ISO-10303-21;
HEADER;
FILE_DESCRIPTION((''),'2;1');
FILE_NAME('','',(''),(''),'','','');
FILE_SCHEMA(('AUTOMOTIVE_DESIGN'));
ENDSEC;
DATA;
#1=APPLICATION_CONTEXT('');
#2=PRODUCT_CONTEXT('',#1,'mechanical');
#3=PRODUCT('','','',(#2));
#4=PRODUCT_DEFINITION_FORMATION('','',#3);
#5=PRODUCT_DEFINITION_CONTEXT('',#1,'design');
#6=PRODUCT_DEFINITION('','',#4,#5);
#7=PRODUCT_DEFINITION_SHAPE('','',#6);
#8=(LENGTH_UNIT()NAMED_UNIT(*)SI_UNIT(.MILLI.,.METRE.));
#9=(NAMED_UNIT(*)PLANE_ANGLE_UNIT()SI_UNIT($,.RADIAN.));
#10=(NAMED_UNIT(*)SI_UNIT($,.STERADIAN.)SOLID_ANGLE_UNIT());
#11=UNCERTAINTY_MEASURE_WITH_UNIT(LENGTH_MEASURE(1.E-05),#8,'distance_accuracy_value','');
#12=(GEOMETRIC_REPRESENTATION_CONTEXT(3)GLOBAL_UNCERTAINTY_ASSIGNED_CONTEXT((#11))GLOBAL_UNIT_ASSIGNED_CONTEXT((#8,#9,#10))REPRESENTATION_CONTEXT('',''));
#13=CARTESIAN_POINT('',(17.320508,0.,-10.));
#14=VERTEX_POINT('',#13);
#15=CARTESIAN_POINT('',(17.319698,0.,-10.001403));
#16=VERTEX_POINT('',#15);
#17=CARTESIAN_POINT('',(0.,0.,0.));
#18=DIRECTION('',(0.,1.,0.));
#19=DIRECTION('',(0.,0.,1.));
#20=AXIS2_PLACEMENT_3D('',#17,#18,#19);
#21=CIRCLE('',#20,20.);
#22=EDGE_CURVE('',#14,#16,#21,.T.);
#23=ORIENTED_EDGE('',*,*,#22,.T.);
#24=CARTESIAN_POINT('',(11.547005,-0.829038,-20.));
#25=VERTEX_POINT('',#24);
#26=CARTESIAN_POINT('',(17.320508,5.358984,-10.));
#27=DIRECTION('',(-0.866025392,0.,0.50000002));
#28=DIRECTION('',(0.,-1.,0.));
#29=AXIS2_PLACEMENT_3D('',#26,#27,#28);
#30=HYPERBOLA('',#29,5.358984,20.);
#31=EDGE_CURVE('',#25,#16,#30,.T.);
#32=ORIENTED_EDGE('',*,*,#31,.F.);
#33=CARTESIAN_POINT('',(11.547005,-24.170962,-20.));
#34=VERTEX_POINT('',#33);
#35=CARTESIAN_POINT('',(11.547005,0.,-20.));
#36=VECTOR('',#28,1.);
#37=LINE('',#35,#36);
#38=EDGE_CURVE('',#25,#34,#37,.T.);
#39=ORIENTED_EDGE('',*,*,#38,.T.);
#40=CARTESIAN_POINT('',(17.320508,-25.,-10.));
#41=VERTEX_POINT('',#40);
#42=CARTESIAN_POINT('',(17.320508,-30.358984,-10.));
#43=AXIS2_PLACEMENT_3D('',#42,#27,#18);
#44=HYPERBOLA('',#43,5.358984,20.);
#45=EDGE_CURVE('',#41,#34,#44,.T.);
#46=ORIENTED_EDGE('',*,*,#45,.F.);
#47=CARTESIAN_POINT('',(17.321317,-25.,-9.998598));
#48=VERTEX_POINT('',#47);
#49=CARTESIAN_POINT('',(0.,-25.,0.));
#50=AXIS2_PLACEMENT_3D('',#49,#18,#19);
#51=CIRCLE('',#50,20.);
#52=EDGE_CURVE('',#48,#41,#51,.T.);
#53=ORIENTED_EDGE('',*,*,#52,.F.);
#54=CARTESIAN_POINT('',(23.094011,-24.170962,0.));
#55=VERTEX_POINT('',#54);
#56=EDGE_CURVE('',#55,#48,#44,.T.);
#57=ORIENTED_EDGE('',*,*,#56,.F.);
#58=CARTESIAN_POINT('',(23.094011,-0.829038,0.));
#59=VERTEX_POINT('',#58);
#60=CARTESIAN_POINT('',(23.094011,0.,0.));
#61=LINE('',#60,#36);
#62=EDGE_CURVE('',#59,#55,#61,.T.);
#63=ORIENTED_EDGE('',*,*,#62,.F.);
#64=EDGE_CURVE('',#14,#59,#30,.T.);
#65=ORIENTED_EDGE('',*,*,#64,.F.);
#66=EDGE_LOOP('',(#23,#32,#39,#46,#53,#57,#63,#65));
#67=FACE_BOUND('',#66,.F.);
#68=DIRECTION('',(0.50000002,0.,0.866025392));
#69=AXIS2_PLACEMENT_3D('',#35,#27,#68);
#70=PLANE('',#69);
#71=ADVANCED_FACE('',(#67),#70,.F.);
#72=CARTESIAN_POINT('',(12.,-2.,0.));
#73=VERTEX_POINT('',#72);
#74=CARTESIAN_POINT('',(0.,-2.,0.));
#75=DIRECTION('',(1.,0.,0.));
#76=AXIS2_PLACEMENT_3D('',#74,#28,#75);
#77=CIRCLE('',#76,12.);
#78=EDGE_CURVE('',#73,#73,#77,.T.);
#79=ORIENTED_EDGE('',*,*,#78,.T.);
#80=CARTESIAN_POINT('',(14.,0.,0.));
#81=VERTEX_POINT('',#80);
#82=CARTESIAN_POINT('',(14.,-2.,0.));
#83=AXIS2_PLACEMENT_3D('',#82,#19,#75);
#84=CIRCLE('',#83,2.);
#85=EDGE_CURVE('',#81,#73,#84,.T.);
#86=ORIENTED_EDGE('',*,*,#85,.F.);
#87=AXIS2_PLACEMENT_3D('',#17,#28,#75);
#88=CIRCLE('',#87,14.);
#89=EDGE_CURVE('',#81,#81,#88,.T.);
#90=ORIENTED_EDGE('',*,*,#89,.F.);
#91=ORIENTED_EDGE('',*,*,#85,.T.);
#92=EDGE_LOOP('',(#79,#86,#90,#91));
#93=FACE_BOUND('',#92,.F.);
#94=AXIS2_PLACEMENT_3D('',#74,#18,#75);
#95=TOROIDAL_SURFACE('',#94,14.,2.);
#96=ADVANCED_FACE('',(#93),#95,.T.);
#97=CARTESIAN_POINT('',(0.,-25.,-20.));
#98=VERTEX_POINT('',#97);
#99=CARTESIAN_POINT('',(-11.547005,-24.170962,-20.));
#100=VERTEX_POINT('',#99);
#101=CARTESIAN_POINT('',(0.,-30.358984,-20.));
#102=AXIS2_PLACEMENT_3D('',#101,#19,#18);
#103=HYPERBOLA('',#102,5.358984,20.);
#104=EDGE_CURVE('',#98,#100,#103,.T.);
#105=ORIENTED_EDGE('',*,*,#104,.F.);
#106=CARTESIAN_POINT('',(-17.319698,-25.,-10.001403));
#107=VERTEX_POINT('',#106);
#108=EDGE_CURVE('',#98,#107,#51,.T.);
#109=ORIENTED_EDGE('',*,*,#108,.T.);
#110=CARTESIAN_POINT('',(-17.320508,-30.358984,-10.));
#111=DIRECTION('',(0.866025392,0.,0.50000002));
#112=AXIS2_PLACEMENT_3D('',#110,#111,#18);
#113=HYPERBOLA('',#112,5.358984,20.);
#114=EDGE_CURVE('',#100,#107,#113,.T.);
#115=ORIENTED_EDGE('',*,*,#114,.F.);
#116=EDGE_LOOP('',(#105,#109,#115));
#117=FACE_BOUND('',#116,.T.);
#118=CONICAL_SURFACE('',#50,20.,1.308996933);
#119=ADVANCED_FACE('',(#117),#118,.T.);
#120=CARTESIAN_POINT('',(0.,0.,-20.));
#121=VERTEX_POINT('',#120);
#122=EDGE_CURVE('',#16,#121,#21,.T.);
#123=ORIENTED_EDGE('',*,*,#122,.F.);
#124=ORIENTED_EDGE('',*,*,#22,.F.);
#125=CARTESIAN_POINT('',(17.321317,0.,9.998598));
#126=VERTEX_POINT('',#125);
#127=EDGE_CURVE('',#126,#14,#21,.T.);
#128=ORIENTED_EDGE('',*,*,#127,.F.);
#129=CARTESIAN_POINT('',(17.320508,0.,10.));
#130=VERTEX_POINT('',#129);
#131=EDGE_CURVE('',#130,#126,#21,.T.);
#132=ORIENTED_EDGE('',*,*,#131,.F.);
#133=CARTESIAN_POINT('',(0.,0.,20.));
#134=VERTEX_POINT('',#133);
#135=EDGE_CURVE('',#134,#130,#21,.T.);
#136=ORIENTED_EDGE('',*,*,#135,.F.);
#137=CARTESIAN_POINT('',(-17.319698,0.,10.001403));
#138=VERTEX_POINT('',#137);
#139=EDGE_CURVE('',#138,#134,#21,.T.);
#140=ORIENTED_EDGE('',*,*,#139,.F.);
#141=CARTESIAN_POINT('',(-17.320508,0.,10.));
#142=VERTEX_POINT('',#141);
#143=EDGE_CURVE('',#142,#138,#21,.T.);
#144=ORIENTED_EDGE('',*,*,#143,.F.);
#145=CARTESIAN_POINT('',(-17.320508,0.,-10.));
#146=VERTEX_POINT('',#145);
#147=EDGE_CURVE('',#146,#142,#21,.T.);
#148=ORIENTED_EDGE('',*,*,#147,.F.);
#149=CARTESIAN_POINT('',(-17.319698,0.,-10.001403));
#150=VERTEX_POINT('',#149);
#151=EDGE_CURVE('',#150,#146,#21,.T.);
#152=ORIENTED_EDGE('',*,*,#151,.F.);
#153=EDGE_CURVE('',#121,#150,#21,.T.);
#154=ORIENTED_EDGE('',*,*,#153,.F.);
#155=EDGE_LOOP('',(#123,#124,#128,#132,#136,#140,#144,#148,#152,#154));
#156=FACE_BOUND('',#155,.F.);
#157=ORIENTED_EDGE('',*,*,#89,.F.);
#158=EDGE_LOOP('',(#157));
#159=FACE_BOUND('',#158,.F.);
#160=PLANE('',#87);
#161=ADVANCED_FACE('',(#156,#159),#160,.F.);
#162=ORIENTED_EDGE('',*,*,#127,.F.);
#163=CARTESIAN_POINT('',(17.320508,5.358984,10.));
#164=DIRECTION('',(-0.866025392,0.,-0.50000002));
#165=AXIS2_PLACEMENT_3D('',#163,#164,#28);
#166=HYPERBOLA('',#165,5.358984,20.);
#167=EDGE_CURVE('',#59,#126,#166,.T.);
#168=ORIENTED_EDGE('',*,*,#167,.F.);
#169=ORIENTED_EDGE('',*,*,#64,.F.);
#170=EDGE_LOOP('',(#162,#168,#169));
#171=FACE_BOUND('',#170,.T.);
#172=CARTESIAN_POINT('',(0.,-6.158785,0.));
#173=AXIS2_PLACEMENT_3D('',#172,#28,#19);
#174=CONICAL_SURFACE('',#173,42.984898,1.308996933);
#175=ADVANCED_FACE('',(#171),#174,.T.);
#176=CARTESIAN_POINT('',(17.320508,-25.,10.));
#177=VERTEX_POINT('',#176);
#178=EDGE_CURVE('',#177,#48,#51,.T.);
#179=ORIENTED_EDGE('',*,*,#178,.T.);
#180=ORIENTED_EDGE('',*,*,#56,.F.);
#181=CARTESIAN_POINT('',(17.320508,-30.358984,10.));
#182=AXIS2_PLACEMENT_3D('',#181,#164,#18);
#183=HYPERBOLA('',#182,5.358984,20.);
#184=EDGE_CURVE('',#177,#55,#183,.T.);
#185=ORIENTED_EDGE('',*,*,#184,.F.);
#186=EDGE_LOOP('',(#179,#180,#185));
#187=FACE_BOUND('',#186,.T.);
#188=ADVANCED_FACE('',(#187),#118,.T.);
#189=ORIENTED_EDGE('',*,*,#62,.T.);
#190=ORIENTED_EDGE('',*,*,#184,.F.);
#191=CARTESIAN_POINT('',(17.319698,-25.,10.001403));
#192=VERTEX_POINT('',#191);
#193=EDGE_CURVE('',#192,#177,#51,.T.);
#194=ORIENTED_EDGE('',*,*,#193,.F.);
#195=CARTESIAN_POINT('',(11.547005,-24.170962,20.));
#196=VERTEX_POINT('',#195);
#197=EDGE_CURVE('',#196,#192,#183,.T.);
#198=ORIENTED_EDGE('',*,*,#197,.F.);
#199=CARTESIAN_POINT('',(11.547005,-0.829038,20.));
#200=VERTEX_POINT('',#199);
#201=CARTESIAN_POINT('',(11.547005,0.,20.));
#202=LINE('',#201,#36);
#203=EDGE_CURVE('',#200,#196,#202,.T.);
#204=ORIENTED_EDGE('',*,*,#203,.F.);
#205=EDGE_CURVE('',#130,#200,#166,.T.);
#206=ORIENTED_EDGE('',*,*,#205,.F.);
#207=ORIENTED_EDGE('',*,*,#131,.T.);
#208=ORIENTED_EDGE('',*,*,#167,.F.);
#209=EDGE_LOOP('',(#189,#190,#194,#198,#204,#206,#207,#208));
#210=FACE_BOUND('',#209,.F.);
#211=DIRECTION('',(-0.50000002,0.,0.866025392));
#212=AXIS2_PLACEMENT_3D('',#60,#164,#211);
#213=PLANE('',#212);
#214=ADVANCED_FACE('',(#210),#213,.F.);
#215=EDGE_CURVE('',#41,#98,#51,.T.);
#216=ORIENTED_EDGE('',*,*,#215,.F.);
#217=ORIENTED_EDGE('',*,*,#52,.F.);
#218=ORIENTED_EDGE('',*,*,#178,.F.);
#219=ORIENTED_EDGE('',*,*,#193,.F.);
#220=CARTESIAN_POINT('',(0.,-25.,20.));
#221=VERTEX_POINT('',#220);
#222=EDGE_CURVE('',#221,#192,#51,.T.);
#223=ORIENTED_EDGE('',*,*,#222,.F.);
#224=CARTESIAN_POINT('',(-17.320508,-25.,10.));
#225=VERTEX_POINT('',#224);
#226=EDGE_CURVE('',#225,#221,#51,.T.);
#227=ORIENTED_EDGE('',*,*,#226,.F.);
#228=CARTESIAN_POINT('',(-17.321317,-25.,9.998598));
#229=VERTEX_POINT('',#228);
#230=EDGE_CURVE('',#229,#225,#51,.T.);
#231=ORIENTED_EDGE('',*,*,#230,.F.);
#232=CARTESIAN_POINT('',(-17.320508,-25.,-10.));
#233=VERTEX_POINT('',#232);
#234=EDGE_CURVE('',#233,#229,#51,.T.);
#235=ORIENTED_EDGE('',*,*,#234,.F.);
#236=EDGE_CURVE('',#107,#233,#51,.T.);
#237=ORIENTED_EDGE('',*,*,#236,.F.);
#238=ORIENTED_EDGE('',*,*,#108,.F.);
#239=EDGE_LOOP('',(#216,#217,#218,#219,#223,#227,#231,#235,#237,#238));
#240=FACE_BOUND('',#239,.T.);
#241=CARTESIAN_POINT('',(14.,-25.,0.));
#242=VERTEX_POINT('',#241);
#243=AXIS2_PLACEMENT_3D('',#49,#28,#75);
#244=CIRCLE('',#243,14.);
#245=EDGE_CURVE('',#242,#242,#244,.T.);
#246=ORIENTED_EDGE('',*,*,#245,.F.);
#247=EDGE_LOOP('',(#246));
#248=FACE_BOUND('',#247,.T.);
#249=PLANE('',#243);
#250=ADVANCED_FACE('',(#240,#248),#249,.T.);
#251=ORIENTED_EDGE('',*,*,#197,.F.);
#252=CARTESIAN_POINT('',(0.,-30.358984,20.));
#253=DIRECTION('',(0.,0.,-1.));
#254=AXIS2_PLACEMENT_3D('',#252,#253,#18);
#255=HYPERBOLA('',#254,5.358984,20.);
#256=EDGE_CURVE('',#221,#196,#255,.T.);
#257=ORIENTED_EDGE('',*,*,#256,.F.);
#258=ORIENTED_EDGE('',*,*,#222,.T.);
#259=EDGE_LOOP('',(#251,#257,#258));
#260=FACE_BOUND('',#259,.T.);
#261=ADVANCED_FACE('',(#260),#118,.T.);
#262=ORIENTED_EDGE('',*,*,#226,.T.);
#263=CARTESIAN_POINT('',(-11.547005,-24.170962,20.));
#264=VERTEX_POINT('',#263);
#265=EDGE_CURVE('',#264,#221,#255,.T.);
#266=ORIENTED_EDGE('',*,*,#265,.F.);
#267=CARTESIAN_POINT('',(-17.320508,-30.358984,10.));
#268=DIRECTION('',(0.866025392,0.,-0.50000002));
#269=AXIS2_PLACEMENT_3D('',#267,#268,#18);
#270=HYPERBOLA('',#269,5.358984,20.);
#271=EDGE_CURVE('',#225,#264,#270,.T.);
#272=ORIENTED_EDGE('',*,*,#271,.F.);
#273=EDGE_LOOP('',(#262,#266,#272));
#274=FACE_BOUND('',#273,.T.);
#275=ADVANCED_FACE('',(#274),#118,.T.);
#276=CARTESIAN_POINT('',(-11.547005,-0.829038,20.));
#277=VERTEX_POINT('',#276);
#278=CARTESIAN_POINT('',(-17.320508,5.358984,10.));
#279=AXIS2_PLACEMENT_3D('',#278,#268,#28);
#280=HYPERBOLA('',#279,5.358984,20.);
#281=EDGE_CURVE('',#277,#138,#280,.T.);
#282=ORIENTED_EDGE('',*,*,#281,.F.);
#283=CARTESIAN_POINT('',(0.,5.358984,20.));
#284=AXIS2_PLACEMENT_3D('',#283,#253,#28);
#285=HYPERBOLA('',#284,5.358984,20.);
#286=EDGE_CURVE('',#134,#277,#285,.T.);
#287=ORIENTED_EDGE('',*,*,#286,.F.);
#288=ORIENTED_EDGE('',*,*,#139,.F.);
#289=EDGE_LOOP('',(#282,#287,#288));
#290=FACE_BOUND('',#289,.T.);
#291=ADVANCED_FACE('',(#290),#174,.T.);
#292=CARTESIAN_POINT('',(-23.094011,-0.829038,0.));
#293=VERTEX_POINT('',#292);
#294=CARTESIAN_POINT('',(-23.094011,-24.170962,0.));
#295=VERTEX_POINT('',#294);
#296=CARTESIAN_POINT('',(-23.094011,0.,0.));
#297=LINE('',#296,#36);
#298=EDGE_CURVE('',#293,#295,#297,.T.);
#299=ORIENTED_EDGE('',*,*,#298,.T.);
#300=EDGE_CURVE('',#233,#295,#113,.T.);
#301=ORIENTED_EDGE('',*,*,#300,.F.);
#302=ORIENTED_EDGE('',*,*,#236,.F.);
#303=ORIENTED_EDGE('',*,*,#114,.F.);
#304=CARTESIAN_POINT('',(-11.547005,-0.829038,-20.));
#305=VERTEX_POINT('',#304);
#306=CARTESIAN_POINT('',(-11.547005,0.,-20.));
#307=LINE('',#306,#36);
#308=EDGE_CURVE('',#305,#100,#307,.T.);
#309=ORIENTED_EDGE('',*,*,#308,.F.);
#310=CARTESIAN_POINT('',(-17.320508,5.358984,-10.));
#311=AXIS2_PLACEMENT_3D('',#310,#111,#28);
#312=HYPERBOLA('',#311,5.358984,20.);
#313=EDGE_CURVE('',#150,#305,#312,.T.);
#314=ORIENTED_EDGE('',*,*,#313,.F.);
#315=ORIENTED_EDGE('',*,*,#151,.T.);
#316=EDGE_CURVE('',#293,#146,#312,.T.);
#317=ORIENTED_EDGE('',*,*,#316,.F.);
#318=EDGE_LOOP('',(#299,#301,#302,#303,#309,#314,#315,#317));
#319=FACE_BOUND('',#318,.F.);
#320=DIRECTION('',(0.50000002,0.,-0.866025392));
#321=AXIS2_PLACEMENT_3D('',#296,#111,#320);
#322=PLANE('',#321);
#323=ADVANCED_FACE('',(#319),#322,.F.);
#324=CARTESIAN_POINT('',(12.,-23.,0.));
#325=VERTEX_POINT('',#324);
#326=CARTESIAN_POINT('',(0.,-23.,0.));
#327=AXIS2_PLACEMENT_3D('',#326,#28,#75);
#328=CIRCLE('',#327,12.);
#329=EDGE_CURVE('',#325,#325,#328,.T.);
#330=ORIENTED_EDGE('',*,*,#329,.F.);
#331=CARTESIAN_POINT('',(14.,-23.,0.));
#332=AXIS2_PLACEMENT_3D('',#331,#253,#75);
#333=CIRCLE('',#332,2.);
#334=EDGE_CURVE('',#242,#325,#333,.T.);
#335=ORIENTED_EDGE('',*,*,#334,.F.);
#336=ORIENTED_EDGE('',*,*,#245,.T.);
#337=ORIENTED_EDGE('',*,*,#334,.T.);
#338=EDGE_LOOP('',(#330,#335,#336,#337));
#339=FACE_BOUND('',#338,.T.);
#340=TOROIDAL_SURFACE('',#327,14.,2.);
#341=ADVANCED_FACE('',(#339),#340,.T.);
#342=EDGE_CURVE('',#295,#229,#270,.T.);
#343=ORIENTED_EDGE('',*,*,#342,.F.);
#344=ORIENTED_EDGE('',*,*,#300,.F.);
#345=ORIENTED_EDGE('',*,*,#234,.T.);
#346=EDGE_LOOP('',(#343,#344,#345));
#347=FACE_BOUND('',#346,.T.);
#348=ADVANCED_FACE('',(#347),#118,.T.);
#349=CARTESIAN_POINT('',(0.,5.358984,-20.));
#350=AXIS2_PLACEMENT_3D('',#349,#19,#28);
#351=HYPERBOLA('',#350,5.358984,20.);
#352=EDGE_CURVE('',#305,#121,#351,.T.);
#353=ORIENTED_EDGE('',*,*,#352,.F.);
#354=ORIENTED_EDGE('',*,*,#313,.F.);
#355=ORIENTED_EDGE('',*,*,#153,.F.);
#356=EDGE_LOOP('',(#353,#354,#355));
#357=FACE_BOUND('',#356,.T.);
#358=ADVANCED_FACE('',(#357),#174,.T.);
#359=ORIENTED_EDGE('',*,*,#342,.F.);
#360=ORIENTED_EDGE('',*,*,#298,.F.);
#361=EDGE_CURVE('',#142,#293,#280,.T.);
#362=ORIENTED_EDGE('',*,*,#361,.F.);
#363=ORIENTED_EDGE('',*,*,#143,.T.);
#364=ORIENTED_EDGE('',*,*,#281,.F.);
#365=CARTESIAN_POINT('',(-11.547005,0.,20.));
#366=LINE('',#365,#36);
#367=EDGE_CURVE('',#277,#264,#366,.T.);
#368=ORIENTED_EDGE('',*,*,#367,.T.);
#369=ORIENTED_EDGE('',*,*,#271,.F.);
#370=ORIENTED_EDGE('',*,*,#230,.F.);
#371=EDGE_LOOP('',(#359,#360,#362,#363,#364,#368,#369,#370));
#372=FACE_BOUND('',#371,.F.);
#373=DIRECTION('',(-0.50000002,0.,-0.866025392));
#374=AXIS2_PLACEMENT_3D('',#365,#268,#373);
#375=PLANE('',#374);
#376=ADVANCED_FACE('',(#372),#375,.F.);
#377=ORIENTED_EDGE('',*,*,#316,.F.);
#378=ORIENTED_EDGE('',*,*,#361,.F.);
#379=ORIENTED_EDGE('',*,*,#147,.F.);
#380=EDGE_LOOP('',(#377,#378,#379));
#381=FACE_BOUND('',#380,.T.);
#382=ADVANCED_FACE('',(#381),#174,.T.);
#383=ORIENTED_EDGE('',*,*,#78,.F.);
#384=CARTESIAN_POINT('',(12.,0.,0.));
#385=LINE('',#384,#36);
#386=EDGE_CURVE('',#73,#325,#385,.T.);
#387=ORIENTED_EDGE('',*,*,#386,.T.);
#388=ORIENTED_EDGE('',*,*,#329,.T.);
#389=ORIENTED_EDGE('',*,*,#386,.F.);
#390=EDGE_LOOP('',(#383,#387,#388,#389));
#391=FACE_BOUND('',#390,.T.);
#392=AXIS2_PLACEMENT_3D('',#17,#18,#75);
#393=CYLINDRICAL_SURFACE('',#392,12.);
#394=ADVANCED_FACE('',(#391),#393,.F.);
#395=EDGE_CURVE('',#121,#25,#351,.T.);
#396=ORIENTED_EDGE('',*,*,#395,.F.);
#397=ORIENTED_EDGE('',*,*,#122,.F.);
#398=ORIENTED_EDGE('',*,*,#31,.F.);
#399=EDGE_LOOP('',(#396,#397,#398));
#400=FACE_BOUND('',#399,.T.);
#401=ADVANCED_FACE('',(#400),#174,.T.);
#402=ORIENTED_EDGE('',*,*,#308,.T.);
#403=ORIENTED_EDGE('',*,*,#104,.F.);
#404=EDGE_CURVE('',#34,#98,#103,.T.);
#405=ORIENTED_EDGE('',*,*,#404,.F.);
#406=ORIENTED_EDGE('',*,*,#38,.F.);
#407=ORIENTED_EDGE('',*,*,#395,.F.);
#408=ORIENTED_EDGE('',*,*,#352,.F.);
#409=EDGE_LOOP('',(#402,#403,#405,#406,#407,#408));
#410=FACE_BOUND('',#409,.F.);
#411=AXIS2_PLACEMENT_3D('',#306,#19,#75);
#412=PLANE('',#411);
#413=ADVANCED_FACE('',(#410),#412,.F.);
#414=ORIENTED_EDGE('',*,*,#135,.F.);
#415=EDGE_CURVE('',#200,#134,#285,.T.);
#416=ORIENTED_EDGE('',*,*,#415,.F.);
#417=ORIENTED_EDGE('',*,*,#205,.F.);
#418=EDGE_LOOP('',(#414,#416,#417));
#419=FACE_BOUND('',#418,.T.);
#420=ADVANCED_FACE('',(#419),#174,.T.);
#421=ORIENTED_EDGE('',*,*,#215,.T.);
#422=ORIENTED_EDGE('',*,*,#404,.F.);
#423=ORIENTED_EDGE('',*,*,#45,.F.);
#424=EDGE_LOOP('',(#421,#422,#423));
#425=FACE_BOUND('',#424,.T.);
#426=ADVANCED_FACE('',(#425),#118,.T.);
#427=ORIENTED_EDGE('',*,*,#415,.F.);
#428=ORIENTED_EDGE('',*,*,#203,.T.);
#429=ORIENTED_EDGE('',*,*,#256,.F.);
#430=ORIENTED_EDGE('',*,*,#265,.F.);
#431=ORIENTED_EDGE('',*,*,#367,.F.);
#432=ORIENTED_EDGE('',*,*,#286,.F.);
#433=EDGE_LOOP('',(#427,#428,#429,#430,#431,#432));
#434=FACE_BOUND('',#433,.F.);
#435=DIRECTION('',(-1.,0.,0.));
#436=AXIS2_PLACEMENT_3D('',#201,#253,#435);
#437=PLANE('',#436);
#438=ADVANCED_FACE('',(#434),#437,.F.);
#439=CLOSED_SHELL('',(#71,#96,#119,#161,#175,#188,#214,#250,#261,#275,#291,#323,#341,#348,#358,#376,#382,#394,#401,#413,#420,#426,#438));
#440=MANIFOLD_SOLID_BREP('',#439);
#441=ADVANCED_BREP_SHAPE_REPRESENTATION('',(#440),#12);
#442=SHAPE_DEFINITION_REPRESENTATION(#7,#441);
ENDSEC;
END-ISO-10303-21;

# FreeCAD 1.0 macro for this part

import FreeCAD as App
import Part
import Sketcher

V = App.Vector
Q = App.Units.Quantity


def edges_at(feature, points):
    """Names of the edges that pass closest to the given points."""
    edges = feature.Shape.Edges
    near = lambda p: min(range(len(edges)), key=lambda i: edges[i].distToShape(Part.Vertex(*p))[0])
    return sorted({f"Edge{near(p) + 1}" for p in points})

doc = App.newDocument("Part")
body = doc.addObject("PartDesign::Body", "Body")

# Sketch on XZ plane
sketch1 = doc.addObject("Sketcher::SketchObject", "Sketch")
body.addObject(sketch1)
sketch1.AttachmentSupport = (doc.XZ_Plane, [""])
sketch1.MapMode = "FlatFace"
sketch1.addGeometry([
    Part.LineSegment(V(11.547005, 20, 0), V(-11.547005, 20, 0)),  # 0
    Part.LineSegment(V(-11.547005, 20, 0), V(-23.094011, 0, 0)),  # 1
    Part.LineSegment(V(-23.094011, 0, 0), V(-11.547005, -20, 0)),  # 2
    Part.LineSegment(V(-11.547005, -20, 0), V(11.547005, -20, 0)),  # 3
    Part.LineSegment(V(11.547005, -20, 0), V(23.094011, 0, 0)),  # 4
    Part.LineSegment(V(23.094011, 0, 0), V(11.547005, 20, 0)),  # 5
    Part.Circle(V(0, 0, 0), V(0, 0, 1), 12),  # 6
], False)
sketch1.addConstraint([
    Sketcher.Constraint("Coincident", 0, 2, 1, 1),
    Sketcher.Constraint("Coincident", 1, 2, 2, 1),
    Sketcher.Constraint("Coincident", 2, 2, 3, 1),
    Sketcher.Constraint("Coincident", 3, 2, 4, 1),
    Sketcher.Constraint("Coincident", 4, 2, 5, 1),
    Sketcher.Constraint("Coincident", 5, 2, 0, 1),
    Sketcher.Constraint("Horizontal", 0),
    Sketcher.Constraint("Horizontal", 3),
    Sketcher.Constraint("Coincident", 6, 3, -1, 1),
    Sketcher.Constraint("Symmetric", 0, 2, 3, 2, -1, 1),
    Sketcher.Constraint("Symmetric", 1, 2, 4, 2, -1, 1),
    Sketcher.Constraint("PointOnObject", 1, 2, -1),
    Sketcher.Constraint("Parallel", 2, 5),
    Sketcher.Constraint("Vertical", 0, 2, 2, 2),
    Sketcher.Constraint("Diameter", 6, 24.0),
    Sketcher.Constraint("Angle", 1, Q("-120.000001 deg")),
    Sketcher.Constraint("DistanceY", -1, 1, 0, 2, 20.0),
    Sketcher.Constraint("DistanceX", 0, 2, 0, 1, 23.09401),
])
pad1 = doc.addObject("PartDesign::Pad", "Pad")
body.addObject(pad1)
pad1.Profile = sketch1
pad1.Length = 25

# Sketch on YZ plane
sketch2 = doc.addObject("Sketcher::SketchObject", "Sketch001")
body.addObject(sketch2)
sketch2.AttachmentSupport = (doc.YZ_Plane, [""])
sketch2.MapMode = "FlatFace"
sketch2.addGeometry([
    Part.LineSegment(V(-25, 56.939398, 0), V(-25, 20, 0)),  # 0
    Part.LineSegment(V(-25, 20, 0), V(-18.841215, 42.984898, 0)),  # 1
    Part.LineSegment(V(-18.841215, 42.984898, 0), V(-6.158785, 42.984898, 0)),  # 2
    Part.LineSegment(V(-6.158785, 42.984898, 0), V(0, 20, 0)),  # 3
    Part.LineSegment(V(0, 20, 0), V(0, 56.939398, 0)),  # 4
    Part.LineSegment(V(0, 56.939398, 0), V(-25, 56.939398, 0)),  # 5
], False)
sketch2.addConstraint([
    Sketcher.Constraint("Coincident", 0, 2, 1, 1),
    Sketcher.Constraint("Coincident", 1, 2, 2, 1),
    Sketcher.Constraint("Coincident", 2, 2, 3, 1),
    Sketcher.Constraint("Coincident", 3, 2, 4, 1),
    Sketcher.Constraint("Coincident", 4, 2, 5, 1),
    Sketcher.Constraint("Coincident", 5, 2, 0, 1),
    Sketcher.Constraint("Vertical", 0),
    Sketcher.Constraint("Horizontal", 2),
    Sketcher.Constraint("Vertical", 4),
    Sketcher.Constraint("Horizontal", 5),
    Sketcher.Constraint("PointOnObject", 3, 2, -2),
    Sketcher.Constraint("Horizontal", 0, 2, 3, 2),
    Sketcher.Constraint("Equal", 1, 3),
    Sketcher.Constraint("DistanceX", 5, 2, 5, 1, 25.0),
    Sketcher.Constraint("Angle", 1, Q("75 deg")),
    Sketcher.Constraint("DistanceY", -1, 1, 0, 2, 20.0),
    Sketcher.Constraint("DistanceX", 2, 1, 2, 2, 12.68243),
    Sketcher.Constraint("DistanceY", 2, 2, 4, 2, 13.9545),
])
groove = doc.addObject("PartDesign::Groove", "Groove")
body.addObject(groove)
groove.Profile = sketch2
groove.ReferenceAxis = (sketch2, ["H_Axis"])
groove.Angle = 360
doc.recompute()

fillet = doc.addObject("PartDesign::Fillet", "Fillet")
body.addObject(fillet)
fillet.Base = (groove, edges_at(groove, [(-12, -25, 0), (-12, 0, 0)]))
fillet.Radius = 2

doc.recompute()
